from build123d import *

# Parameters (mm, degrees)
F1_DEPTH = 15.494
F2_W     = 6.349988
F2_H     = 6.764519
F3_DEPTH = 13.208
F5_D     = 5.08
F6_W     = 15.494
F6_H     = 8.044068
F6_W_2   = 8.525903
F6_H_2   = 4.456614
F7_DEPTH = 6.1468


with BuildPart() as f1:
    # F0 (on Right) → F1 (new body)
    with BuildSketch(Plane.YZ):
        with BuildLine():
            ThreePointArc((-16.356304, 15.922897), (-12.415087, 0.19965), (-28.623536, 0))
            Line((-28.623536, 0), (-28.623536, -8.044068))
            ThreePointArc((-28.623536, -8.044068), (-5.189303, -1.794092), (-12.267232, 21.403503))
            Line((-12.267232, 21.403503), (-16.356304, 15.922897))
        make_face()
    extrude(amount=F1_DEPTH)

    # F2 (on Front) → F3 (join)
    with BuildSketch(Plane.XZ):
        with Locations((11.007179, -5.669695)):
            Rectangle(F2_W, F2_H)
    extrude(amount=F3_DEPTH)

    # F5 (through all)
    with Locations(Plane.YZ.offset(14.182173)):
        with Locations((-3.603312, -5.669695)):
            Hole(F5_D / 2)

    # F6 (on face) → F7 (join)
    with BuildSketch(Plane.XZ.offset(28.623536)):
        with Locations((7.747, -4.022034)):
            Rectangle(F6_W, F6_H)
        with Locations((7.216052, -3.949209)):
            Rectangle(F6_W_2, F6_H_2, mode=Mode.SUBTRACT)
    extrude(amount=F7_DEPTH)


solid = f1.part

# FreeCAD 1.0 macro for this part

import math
import FreeCAD as App
import Part
import Sketcher
Q = App.Units.Quantity

doc = App.newDocument("Part")
body = doc.addObject("PartDesign::Body", "Body")

# Sketch on YZ plane
sketch1 = body.newObject("Sketcher::SketchObject", "Sketch")
sketch1.AttachmentSupport = (doc.getObject("YZ_Plane"), [""])
sketch1.MapMode = "FlatFace"
sketch1.addGeometry([
    Part.ArcOfCircle(Part.Circle(App.Vector(-21, 7, 0), App.Vector(0, 0, 1), 10), math.radians(-141), math.radians(66)),
    Part.LineSegment(App.Vector(-29, 0, 0), App.Vector(-29, -8, 0)),
    Part.ArcOfCircle(Part.Circle(App.Vector(-20, 6, 0), App.Vector(0, 0, 1), 17), math.radians(-121), math.radians(63)),
    Part.LineSegment(App.Vector(-12, 21, 0), App.Vector(-16, 16, 0)),
], False)
sketch1.addConstraint([
    Sketcher.Constraint("Coincident", 0, 1, 1, 1),
    Sketcher.Constraint("Coincident", 1, 2, 2, 1),
    Sketcher.Constraint("Coincident", 2, 2, 3, 1),
    Sketcher.Constraint("Coincident", 3, 2, 0, 2),
    Sketcher.Constraint("Vertical", 1),
    Sketcher.Constraint("PointOnObject", 0, 1, -1),
    Sketcher.Constraint("Radius", 2, Q("16.853188 mm")),
    Sketcher.Constraint("Radius", 0, Q("10.329984 mm")),
    Sketcher.Constraint("Distance", 3, Q("6.837949 mm")),
    Sketcher.Constraint("DistanceY", 1, 2, 1, 1, Q("8.044068 mm")),
    Sketcher.Constraint("DistanceY", -1, 1, 2, 3, Q("6.389218 mm")),
    Sketcher.Constraint("DistanceX", 0, 3, 2, 3, Q("0.675822 mm")),
    Sketcher.Constraint("DistanceY", 1, 2, 2, 2, Q("29.447571 mm")),
    Sketcher.Constraint("DistanceX", 0, 3, -1, 1, Q("20.598196 mm")),
])
pad1 = body.newObject("PartDesign::Pad", "Pad")
pad1.Profile = sketch1
pad1.Length = Q("0.61 in")

# Sketch on XZ plane
sketch2 = body.newObject("Sketcher::SketchObject", "Sketch001")
sketch2.AttachmentSupport = (doc.getObject("XZ_Plane"), [""])
sketch2.MapMode = "FlatFace"
sketch2.addGeometry([
    Part.LineSegment(App.Vector(8, -2, 0), App.Vector(8, -9, 0)),
    Part.LineSegment(App.Vector(8, -9, 0), App.Vector(14, -9, 0)),
    Part.LineSegment(App.Vector(14, -9, 0), App.Vector(14, -2, 0)),
    Part.LineSegment(App.Vector(14, -2, 0), App.Vector(8, -2, 0)),
], False)
sketch2.addConstraint([
    Sketcher.Constraint("Coincident", 0, 2, 1, 1),
    Sketcher.Constraint("Coincident", 1, 2, 2, 1),
    Sketcher.Constraint("Coincident", 2, 2, 3, 1),
    Sketcher.Constraint("Coincident", 3, 2, 0, 1),
    Sketcher.Constraint("Vertical", 0),
    Sketcher.Constraint("Horizontal", 1),
    Sketcher.Constraint("Vertical", 2),
    Sketcher.Constraint("Horizontal", 3),
    Sketcher.Constraint("DistanceX", 1, 1, 1, 2, Q("6.349988 mm")),
    Sketcher.Constraint("DistanceY", 0, 2, 0, 1, Q("6.764519 mm")),
    Sketcher.Constraint("DistanceX", -1, 1, 0, 2, Q("7.832185 mm")),
    Sketcher.Constraint("DistanceY", 0, 2, -1, 1, Q("9.051955 mm")),
])
pad2 = body.newObject("PartDesign::Pad", "Pad001")
pad2.Profile = sketch2
pad2.Length = Q("0.52 in")

# Sketch on YZ plane
sketch3 = body.newObject("Sketcher::SketchObject", "Sketch002")
sketch3.AttachmentSupport = (doc.getObject("YZ_Plane"), [""])
sketch3.MapMode = "FlatFace"
sketch3.AttachmentOffset = App.Placement(App.Vector(0, 0, 14.182173), App.Rotation())
sketch3.addGeometry(Part.Circle(App.Vector(-3.6, -5.7, 0), App.Vector(0, 0, 1), 2.5), False)
sketch3.addConstraint([
    Sketcher.Constraint("Diameter", 0, Q("0.2 in")),
    Sketcher.Constraint("DistanceX", 0, 3, -1, 1, Q("3.603312 mm")),
    Sketcher.Constraint("DistanceY", 0, 3, -1, 1, Q("5.669695 mm")),
])
doc.recompute()
hole = body.newObject("PartDesign::Hole", "Hole")
hole.Profile = sketch3
hole.ThreadType = "None"
hole.Diameter = Q("0.2 in")
hole.DepthType = "ThroughAll"

# Sketch on XZ plane
sketch4 = body.newObject("Sketcher::SketchObject", "Sketch003")
sketch4.AttachmentSupport = (doc.getObject("XZ_Plane"), [""])
sketch4.MapMode = "FlatFace"
sketch4.AttachmentOffset = App.Placement(App.Vector(0, 0, 28.623536), App.Rotation())
sketch4.addGeometry([
    Part.LineSegment(App.Vector(0, 0, 0), App.Vector(0, -8, 0)),  # 0
    Part.LineSegment(App.Vector(0, -8, 0), App.Vector(15.5, -8, 0)),  # 1
    Part.LineSegment(App.Vector(15.5, -8, 0), App.Vector(15.5, 0, 0)),  # 2
    Part.LineSegment(App.Vector(15.5, 0, 0), App.Vector(0, 0, 0)),  # 3
    Part.LineSegment(App.Vector(11.5, -6.2, 0), App.Vector(3, -6.2, 0)),  # 4
    Part.LineSegment(App.Vector(3, -6.2, 0), App.Vector(3, -1.7, 0)),  # 5
    Part.LineSegment(App.Vector(3, -1.7, 0), App.Vector(11.5, -1.7, 0)),  # 6
    Part.LineSegment(App.Vector(11.5, -1.7, 0), App.Vector(11.5, -6.2, 0)),  # 7
], False)
sketch4.addConstraint([
    Sketcher.Constraint("Coincident", 0, 2, 1, 1),
    Sketcher.Constraint("Coincident", 1, 2, 2, 1),
    Sketcher.Constraint("Coincident", 2, 2, 3, 1),
    Sketcher.Constraint("Coincident", 3, 2, 0, 1),
    Sketcher.Constraint("Coincident", 4, 2, 5, 1),
    Sketcher.Constraint("Coincident", 5, 2, 6, 1),
    Sketcher.Constraint("Coincident", 6, 2, 7, 1),
    Sketcher.Constraint("Coincident", 7, 2, 4, 1),
    Sketcher.Constraint("Vertical", 0),
    Sketcher.Constraint("Horizontal", 1),
    Sketcher.Constraint("Vertical", 2),
    Sketcher.Constraint("Horizontal", 3),
    Sketcher.Constraint("Horizontal", 4),
    Sketcher.Constraint("Vertical", 5),
    Sketcher.Constraint("Horizontal", 6),
    Sketcher.Constraint("Vertical", 7),
    Sketcher.Constraint("Coincident", 3, 2, -1, 1),
    Sketcher.Constraint("DistanceX", 1, 1, 1, 2, Q("0.61 in")),
    Sketcher.Constraint("DistanceX", -1, 1, 4, 2, Q("2.953101 mm")),
    Sketcher.Constraint("DistanceY", 5, 2, -1, 1, Q("1.720902 mm")),
    Sketcher.Constraint("DistanceX", 4, 2, 4, 1, Q("8.525903 mm")),
    Sketcher.Constraint("DistanceY", 0, 2, 0, 1, Q("8.044068 mm")),
    Sketcher.Constraint("DistanceY", 5, 1, 5, 2, Q("4.456614 mm")),
])
pad3 = body.newObject("PartDesign::Pad", "Pad002")
pad3.Profile = sketch4
pad3.Length = Q("0.242 in")

doc.recompute()
